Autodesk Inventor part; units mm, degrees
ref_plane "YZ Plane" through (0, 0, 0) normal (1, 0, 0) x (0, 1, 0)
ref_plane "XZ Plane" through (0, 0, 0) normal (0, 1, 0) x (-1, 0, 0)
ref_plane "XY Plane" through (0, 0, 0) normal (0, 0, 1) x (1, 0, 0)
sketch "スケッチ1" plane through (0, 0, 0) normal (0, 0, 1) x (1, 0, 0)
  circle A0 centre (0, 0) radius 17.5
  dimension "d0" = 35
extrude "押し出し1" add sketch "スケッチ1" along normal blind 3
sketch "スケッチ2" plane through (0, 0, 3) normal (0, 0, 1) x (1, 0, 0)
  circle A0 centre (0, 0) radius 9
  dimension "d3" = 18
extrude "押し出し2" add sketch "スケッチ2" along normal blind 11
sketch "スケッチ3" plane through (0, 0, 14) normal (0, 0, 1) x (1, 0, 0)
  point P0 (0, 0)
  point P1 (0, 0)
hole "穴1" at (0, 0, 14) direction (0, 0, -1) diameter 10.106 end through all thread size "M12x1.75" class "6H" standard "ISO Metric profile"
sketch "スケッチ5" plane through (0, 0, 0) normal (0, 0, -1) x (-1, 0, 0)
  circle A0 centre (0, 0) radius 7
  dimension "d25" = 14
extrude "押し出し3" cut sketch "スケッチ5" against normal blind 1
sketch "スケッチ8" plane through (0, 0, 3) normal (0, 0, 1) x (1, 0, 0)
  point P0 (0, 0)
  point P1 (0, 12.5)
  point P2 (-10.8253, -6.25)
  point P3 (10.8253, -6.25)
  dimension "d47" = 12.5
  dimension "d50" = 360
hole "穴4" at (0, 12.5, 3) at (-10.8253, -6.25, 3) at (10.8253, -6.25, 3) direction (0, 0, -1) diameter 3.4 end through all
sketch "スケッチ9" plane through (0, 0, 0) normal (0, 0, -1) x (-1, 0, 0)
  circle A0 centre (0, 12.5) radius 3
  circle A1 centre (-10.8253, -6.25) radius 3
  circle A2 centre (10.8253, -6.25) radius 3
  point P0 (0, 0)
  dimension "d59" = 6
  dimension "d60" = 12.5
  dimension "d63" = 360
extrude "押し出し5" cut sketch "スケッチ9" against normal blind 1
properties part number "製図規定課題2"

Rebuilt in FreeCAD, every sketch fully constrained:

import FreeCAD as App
import Part
import Sketcher
from FreeCAD import Vector

doc = App.newDocument("Part")
body = doc.addObject("PartDesign::Body", "Body")

# Sketch on XY plane
sketch1 = doc.addObject("Sketcher::SketchObject", "Sketch")
body.addObject(sketch1)
sketch1.AttachmentSupport = (doc.XY_Plane, [""])
sketch1.MapMode = "FlatFace"
sketch1.addGeometry(Part.Circle(Vector(0, 0, 0), Vector(0, 0, 1), 18), False)
sketch1.addConstraint(Sketcher.Constraint("Coincident", 0, 3, -1, 1))
sketch1.addConstraint(Sketcher.Constraint("Diameter", 0, 35.0))
pad1 = doc.addObject("PartDesign::Pad", "Pad")
body.addObject(pad1)
pad1.Profile = sketch1
pad1.Length = 3

# Sketch on XY plane
sketch2 = doc.addObject("Sketcher::SketchObject", "Sketch001")
body.addObject(sketch2)
sketch2.AttachmentSupport = (doc.XY_Plane, [""])
sketch2.MapMode = "FlatFace"
sketch2.AttachmentOffset = App.Placement(Vector(0, 0, 3), App.Rotation())
sketch2.addGeometry(Part.Circle(Vector(0, 0, 0), Vector(0, 0, 1), 9), False)
sketch2.addConstraint(Sketcher.Constraint("Coincident", 0, 3, -1, 1))
sketch2.addConstraint(Sketcher.Constraint("Diameter", 0, 18.0))
pad2 = doc.addObject("PartDesign::Pad", "Pad001")
body.addObject(pad2)
pad2.Profile = sketch2
pad2.Length = 11

# Sketch on XY plane
sketch3 = doc.addObject("Sketcher::SketchObject", "Sketch002")
body.addObject(sketch3)
sketch3.AttachmentSupport = (doc.XY_Plane, [""])
sketch3.MapMode = "FlatFace"
sketch3.AttachmentOffset = App.Placement(Vector(0, 0, 14), App.Rotation())
sketch3.addGeometry(Part.Circle(Vector(0, 0, 0), Vector(0, 0, 1), 5), False)
sketch3.addConstraint(Sketcher.Constraint("Coincident", 0, 3, -1, 1))
sketch3.addConstraint(Sketcher.Constraint("Diameter", 0, 10.106))
doc.recompute()
hole = doc.addObject("PartDesign::Hole", "Hole")
body.addObject(hole)
hole.Profile = sketch3
hole.ThreadType = "None"
hole.Diameter = 10.106
hole.DepthType = "ThroughAll"

# Sketch on XY plane
sketch4 = doc.addObject("Sketcher::SketchObject", "Sketch003")
body.addObject(sketch4)
sketch4.AttachmentSupport = (doc.XY_Plane, [""])
sketch4.MapMode = "FlatFace"
sketch4.addGeometry(Part.Circle(Vector(0, 0, 0), Vector(0, 0, 1), 7), False)
sketch4.addConstraint(Sketcher.Constraint("Coincident", 0, 3, -1, 1))
sketch4.addConstraint(Sketcher.Constraint("Diameter", 0, 14.0))
pocket1 = doc.addObject("PartDesign::Pocket", "Pocket")
body.addObject(pocket1)
pocket1.Profile = sketch4
pocket1.Length = 1
pocket1.Reversed = True

# Sketch on XY plane
sketch5 = doc.addObject("Sketcher::SketchObject", "Sketch004")
body.addObject(sketch5)
sketch5.AttachmentSupport = (doc.XY_Plane, [""])
sketch5.MapMode = "FlatFace"
sketch5.AttachmentOffset = App.Placement(Vector(0, 0, 3), App.Rotation())
sketch5.addGeometry(Part.Circle(Vector(0, 12.5, 0), Vector(0, 0, 1), 1.7), False)
sketch5.addGeometry(Part.Circle(Vector(-10.8, -6.2, 0), Vector(0, 0, 1), 1.7), False)
sketch5.addGeometry(Part.Circle(Vector(10.8, -6.2, 0), Vector(0, 0, 1), 1.7), False)
sketch5.addConstraint(Sketcher.Constraint("Equal", 0, 1))
sketch5.addConstraint(Sketcher.Constraint("Equal", 1, 2))
sketch5.addConstraint(Sketcher.Constraint("Symmetric", 1, 3, 2, 3, -2))
sketch5.addConstraint(Sketcher.Constraint("PointOnObject", 0, 3, -2))
sketch5.addConstraint(Sketcher.Constraint("Diameter", 0, 3.4))
sketch5.addConstraint(Sketcher.Constraint("DistanceY", -1, 1, 0, 3, 12.5))
sketch5.addConstraint(Sketcher.Constraint("DistanceY", 1, 3, -1, 1, 6.25))
sketch5.addConstraint(Sketcher.Constraint("DistanceX", 1, 3, -1, 1, 10.8253))
doc.recompute()
hole2 = doc.addObject("PartDesign::Hole", "Hole001")
body.addObject(hole2)
hole2.Profile = sketch5
hole2.ThreadType = "None"
hole2.Diameter = 3.4
hole2.DepthType = "ThroughAll"

# Sketch on XY plane
sketch6 = doc.addObject("Sketcher::SketchObject", "Sketch005")
body.addObject(sketch6)
sketch6.AttachmentSupport = (doc.XY_Plane, [""])
sketch6.MapMode = "FlatFace"
sketch6.addGeometry(Part.Circle(Vector(0, 12.5, 0), Vector(0, 0, 1), 3), False)
sketch6.addGeometry(Part.Circle(Vector(10.8, -6.2, 0), Vector(0, 0, 1), 3), False)
sketch6.addGeometry(Part.Circle(Vector(-10.8, -6.2, 0), Vector(0, 0, 1), 3), False)
sketch6.addConstraint(Sketcher.Constraint("Equal", 0, 1))
sketch6.addConstraint(Sketcher.Constraint("Equal", 1, 2))
sketch6.addConstraint(Sketcher.Constraint("Symmetric", 1, 3, 2, 3, -2))
sketch6.addConstraint(Sketcher.Constraint("PointOnObject", 0, 3, -2))
sketch6.addConstraint(Sketcher.Constraint("Diameter", 0, 6.0))
sketch6.addConstraint(Sketcher.Constraint("DistanceY", -1, 1, 0, 3, 12.5))
sketch6.addConstraint(Sketcher.Constraint("DistanceY", 1, 3, -1, 1, 6.25))
sketch6.addConstraint(Sketcher.Constraint("DistanceX", -1, 1, 1, 3, 10.8253))
pocket2 = doc.addObject("PartDesign::Pocket", "Pocket001")
body.addObject(pocket2)
pocket2.Profile = sketch6
pocket2.Length = 1
pocket2.Reversed = True

doc.recompute()
